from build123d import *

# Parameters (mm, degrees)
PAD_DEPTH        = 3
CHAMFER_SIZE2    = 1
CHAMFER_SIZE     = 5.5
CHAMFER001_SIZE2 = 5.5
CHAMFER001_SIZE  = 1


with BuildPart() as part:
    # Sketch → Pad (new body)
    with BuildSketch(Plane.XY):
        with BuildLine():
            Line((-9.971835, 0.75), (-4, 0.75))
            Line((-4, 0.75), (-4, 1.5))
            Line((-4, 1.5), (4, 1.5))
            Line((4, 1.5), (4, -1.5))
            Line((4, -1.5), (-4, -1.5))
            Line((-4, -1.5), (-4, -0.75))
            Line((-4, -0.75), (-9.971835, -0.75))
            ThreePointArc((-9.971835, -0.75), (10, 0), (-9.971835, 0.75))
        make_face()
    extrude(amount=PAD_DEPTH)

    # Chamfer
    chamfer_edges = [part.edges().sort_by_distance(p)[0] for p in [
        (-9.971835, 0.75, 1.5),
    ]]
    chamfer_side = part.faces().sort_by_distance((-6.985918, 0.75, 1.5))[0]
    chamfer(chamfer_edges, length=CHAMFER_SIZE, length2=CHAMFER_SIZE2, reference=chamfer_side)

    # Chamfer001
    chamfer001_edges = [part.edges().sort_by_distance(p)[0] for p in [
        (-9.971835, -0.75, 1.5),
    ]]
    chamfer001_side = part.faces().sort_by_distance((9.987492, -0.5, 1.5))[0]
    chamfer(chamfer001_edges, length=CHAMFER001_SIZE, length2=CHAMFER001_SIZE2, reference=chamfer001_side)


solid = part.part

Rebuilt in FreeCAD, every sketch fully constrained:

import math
import FreeCAD as App
import Part
import Sketcher
Q = App.Units.Quantity


def edges_at(feature, points):
    """Names of the edges that pass closest to the given points."""
    edges = feature.Shape.Edges
    near = lambda p: min(range(len(edges)), key=lambda i: edges[i].distToShape(Part.Vertex(*p))[0])
    return sorted({f"Edge{near(p) + 1}" for p in points})

doc = App.newDocument("Part")
body = doc.addObject("PartDesign::Body", "Body")

# Sketch on XY plane
sketch1 = body.newObject("Sketcher::SketchObject", "Sketch")
sketch1.AttachmentSupport = (doc.getObject("XY_Plane"), [""])
sketch1.MapMode = "FlatFace"
sketch1.addGeometry([
    Part.LineSegment(App.Vector(-10, 0.8, 0), App.Vector(-4, 0.8, 0)),  # 0
    Part.LineSegment(App.Vector(-4, 0.8, 0), App.Vector(-4, 1.5, 0)),  # 1
    Part.LineSegment(App.Vector(-4, 1.5, 0), App.Vector(4, 1.5, 0)),  # 2
    Part.LineSegment(App.Vector(4, 1.5, 0), App.Vector(4, -1.5, 0)),  # 3
    Part.LineSegment(App.Vector(4, -1.5, 0), App.Vector(-4, -1.5, 0)),  # 4
    Part.LineSegment(App.Vector(-4, -1.5, 0), App.Vector(-4, -0.8, 0)),  # 5
    Part.LineSegment(App.Vector(-4, -0.8, 0), App.Vector(-10, -0.8, 0)),  # 6
    Part.ArcOfCircle(Part.Circle(App.Vector(0, 0, 0), App.Vector(0, 0, 1), 10), math.radians(-176), math.radians(176)),  # 7
], False)
sketch1.addConstraint([
    Sketcher.Constraint("Coincident", 0, 2, 1, 1),
    Sketcher.Constraint("Coincident", 1, 2, 2, 1),
    Sketcher.Constraint("Coincident", 2, 2, 3, 1),
    Sketcher.Constraint("Coincident", 3, 2, 4, 1),
    Sketcher.Constraint("Coincident", 4, 2, 5, 1),
    Sketcher.Constraint("Coincident", 5, 2, 6, 1),
    Sketcher.Constraint("Coincident", 6, 2, 7, 1),
    Sketcher.Constraint("Coincident", 7, 2, 0, 1),
    Sketcher.Constraint("Horizontal", 0),
    Sketcher.Constraint("Vertical", 1),
    Sketcher.Constraint("Horizontal", 2),
    Sketcher.Constraint("Vertical", 3),
    Sketcher.Constraint("Horizontal", 4),
    Sketcher.Constraint("Vertical", 5),
    Sketcher.Constraint("Horizontal", 6),
    Sketcher.Constraint("Coincident", 7, 3, -1, 1),
    Sketcher.Constraint("Symmetric", 1, 2, 3, 2, -1, 1),
    Sketcher.Constraint("Symmetric", 0, 2, 5, 2, -1),
    Sketcher.Constraint("Radius", 7, Q("10 mm")),
    Sketcher.Constraint("DistanceX", 2, 1, 2, 2, Q("8 mm")),
    Sketcher.Constraint("DistanceY", 3, 2, 3, 1, Q("3 mm")),
    Sketcher.Constraint("DistanceY", 1, 1, 1, 2, Q("0.75 mm")),
])
pad1 = body.newObject("PartDesign::Pad", "Pad")
pad1.Profile = sketch1
pad1.Length = 3
doc.recompute()

chamfer = body.newObject("PartDesign::Chamfer", "Chamfer")
chamfer.Base = (pad1, edges_at(pad1, [(-9.972, 0.75, 1.5)]))
chamfer.ChamferType = "Two distances"
chamfer.Size = 5.5
chamfer.Size2 = 1
doc.recompute()

chamfer2 = body.newObject("PartDesign::Chamfer", "Chamfer001")
chamfer2.Base = (chamfer, edges_at(chamfer, [(-9.972, -0.75, 1.5)]))
chamfer2.ChamferType = "Two distances"
chamfer2.Size = 1
chamfer2.Size2 = 5.5

doc.recompute()
